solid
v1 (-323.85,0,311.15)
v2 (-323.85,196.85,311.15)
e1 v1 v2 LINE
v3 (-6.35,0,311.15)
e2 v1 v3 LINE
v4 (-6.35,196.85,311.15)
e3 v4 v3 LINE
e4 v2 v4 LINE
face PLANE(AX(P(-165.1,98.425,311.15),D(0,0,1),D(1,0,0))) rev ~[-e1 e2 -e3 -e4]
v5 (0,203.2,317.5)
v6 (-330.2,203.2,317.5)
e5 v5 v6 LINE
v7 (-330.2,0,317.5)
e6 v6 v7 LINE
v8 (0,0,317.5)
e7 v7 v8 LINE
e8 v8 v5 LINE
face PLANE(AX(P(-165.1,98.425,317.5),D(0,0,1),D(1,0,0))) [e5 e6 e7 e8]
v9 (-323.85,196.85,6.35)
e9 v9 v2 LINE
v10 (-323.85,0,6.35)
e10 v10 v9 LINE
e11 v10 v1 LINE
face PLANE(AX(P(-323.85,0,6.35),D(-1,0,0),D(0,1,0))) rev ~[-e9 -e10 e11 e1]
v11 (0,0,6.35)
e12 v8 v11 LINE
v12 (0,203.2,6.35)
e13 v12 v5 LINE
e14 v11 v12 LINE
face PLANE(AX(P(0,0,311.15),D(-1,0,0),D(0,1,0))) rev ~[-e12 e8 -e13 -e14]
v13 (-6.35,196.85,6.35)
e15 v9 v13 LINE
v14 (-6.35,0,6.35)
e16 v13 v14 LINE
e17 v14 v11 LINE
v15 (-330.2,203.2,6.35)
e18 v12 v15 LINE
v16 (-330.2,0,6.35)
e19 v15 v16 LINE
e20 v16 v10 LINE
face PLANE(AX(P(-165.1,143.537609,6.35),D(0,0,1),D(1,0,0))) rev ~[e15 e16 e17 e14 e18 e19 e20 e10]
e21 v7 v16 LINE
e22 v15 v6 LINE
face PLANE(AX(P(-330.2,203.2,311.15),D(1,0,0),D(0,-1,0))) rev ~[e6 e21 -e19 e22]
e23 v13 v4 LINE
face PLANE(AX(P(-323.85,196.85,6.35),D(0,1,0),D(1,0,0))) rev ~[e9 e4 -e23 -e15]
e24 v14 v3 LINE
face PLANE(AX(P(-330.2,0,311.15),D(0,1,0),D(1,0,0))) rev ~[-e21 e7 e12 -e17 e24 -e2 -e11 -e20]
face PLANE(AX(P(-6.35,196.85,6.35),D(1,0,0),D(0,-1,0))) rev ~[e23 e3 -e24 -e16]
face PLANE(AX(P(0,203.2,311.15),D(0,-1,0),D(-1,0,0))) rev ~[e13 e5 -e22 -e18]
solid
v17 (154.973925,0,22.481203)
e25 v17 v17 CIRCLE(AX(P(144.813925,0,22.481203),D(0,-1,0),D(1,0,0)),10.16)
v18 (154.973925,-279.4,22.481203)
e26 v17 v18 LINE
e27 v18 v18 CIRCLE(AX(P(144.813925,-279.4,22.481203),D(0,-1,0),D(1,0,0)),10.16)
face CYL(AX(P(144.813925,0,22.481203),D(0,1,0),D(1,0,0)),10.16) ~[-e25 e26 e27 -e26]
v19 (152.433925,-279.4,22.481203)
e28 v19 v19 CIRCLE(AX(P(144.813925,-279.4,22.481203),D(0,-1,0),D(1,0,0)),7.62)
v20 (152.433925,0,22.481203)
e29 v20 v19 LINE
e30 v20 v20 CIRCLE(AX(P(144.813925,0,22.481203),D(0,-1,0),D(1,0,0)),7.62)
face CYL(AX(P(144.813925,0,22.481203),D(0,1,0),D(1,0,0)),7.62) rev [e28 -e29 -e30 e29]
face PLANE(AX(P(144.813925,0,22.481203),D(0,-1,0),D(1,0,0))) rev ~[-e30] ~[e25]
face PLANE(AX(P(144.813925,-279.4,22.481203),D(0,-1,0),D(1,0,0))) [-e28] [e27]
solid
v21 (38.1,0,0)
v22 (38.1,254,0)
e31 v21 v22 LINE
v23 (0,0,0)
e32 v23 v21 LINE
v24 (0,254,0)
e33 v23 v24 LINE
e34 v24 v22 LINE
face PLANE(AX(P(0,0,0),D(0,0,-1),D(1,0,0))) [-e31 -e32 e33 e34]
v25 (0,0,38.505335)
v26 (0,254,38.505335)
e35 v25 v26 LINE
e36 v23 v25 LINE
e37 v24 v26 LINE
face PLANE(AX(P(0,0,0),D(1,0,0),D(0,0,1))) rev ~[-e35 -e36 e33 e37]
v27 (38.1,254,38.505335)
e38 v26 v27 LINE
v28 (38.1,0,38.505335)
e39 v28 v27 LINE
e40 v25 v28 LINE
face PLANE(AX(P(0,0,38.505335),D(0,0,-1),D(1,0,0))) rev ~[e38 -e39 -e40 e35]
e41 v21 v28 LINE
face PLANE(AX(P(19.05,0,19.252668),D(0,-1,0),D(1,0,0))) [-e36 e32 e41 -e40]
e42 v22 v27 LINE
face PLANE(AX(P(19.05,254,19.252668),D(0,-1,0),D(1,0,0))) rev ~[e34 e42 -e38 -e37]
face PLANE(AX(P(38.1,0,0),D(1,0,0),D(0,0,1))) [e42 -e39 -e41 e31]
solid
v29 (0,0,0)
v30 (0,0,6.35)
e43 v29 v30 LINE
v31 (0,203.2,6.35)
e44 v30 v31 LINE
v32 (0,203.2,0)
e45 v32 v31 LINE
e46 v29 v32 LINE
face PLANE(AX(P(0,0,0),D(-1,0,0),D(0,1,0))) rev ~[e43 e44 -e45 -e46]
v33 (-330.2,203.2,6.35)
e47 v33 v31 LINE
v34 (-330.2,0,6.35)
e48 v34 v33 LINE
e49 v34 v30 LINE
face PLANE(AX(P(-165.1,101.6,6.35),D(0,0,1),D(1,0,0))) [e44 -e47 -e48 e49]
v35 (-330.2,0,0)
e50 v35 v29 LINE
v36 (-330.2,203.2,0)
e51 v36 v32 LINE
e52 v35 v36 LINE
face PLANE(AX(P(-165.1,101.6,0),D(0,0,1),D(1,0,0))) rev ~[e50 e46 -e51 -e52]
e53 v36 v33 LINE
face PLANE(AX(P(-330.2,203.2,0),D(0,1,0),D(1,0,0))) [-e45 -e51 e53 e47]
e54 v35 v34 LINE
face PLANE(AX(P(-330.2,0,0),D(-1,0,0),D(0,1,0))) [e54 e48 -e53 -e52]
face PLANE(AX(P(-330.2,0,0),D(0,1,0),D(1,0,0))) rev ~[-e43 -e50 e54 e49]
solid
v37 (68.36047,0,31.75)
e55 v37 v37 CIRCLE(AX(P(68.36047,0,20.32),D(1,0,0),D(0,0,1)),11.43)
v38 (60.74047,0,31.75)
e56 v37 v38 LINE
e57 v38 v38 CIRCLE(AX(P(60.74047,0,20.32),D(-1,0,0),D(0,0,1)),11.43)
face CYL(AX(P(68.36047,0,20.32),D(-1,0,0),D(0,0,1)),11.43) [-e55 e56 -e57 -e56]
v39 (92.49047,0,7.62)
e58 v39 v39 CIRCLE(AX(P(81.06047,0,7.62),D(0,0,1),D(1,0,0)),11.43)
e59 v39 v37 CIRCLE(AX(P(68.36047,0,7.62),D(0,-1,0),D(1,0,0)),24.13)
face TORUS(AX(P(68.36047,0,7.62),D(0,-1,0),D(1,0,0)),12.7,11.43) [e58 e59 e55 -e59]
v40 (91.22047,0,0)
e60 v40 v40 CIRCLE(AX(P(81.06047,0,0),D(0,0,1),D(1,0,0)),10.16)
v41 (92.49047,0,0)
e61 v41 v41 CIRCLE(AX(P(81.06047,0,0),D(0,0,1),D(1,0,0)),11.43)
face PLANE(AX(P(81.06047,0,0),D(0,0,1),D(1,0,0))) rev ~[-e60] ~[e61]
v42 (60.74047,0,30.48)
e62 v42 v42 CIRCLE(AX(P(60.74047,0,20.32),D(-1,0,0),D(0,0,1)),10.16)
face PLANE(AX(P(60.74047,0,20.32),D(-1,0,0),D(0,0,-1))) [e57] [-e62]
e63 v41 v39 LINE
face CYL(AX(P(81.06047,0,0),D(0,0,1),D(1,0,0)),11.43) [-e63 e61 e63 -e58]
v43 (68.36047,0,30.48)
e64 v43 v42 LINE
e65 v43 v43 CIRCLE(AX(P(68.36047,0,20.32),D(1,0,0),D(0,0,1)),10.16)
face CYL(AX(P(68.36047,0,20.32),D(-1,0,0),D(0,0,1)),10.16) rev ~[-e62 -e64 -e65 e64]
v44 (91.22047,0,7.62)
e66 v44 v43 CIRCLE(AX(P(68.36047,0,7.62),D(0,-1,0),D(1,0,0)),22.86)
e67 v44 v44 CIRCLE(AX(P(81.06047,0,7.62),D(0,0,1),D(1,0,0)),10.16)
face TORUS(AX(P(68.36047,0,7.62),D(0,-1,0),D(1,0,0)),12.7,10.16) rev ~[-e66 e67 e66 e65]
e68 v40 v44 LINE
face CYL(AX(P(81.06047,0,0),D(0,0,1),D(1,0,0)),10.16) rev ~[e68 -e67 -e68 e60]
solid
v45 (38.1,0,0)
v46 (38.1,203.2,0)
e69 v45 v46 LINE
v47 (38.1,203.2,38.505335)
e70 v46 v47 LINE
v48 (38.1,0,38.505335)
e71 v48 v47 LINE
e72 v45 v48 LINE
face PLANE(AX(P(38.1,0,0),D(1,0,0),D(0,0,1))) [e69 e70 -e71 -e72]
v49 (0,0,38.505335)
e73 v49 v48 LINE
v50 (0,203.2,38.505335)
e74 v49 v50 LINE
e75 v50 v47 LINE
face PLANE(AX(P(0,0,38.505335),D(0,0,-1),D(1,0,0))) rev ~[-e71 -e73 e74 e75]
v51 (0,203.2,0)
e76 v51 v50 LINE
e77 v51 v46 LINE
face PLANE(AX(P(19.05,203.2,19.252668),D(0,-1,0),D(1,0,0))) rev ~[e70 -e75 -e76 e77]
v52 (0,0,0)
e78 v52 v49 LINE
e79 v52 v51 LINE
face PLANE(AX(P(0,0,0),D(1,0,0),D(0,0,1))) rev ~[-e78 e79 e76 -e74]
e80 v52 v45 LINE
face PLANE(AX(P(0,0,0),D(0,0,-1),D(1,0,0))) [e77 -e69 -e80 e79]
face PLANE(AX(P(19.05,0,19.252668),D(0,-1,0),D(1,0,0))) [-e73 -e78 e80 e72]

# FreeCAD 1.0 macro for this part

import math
import FreeCAD as App
import Part
import Sketcher

V = App.Vector
Q = App.Units.Quantity

doc = App.newDocument("Part")
params = doc.addObject("Spreadsheet::Sheet", "Params")
for row, (alias, value) in enumerate([
    ("sketch1_width", "1.5 in"),
    ("pad1_length", "10 in"),
    ("sketch2_width", "1.5 in"),
    ("pad2_length", "8 in"),
    ("sketch3_width", "13 in"),
    ("sketch3_height", "8 in"),
    ("pad3_length", "0.25 in"),
    ("sketch4_diameter", "0.8 in"),
    ("sketch4_diameter2", "0.6 in"),
    ("pad4_length", "11 in"),
    ("sketch5_diameter", "0.9 in"),
    ("sketch5_diameter2", "0.8 in"),
    ("sketch6_radius", "0.5 in"),
    ("sketch6_width", "0.3 in"),
    ("sketch7_width", "13 in"),
    ("sketch7_height", "8 in"),
    ("sketch7_width2", "12.5 in"),
    ("sketch7_height2", "7.75 in"),
    ("pad5_length", "12 in"),
    ("sketch8_width", "13 in"),
    ("sketch8_height", "8 in"),
    ("pad6_length", "0.25 in"),
], start=1):
    params.set(f"A{row}", alias)
    params.set(f"B{row}", "=" + value)
    params.setAlias(f"B{row}", alias)

body = doc.addObject("PartDesign::Body", "Body")

# Sketch on XZ plane
sketch1 = body.newObject("Sketcher::SketchObject", "Sketch")
sketch1.AttachmentSupport = (doc.getObject("XZ_Plane"), [""])
sketch1.MapMode = "FlatFace"
sketch1.addGeometry([
    Part.LineSegment(V(0, 39, 0), V(0, 0, 0)),
    Part.LineSegment(V(0, 0, 0), V(38, 0, 0)),
    Part.LineSegment(V(38, 0, 0), V(38, 39, 0)),
    Part.LineSegment(V(38, 39, 0), V(0, 39, 0)),
], False)
sketch1.addConstraint([
    Sketcher.Constraint("Coincident", 0, 2, 1, 1),
    Sketcher.Constraint("Coincident", 1, 2, 2, 1),
    Sketcher.Constraint("Coincident", 2, 2, 3, 1),
    Sketcher.Constraint("Coincident", 3, 2, 0, 1),
    Sketcher.Constraint("Vertical", 0),
    Sketcher.Constraint("Horizontal", 1),
    Sketcher.Constraint("Vertical", 2),
    Sketcher.Constraint("Horizontal", 3),
    Sketcher.Constraint("Coincident", 0, 2, -1, 1),
    Sketcher.Constraint("DistanceX", 1, 1, 1, 2, Q("1.5 in")),
    Sketcher.Constraint("DistanceY", 0, 2, 0, 1, Q("38.505335 mm")),
])
sketch1.setExpression("Constraints[9]", "Params.sketch1_width")
pad1 = body.newObject("PartDesign::Pad", "Pad")
pad1.Profile = sketch1
pad1.setExpression("Length", "Params.pad1_length")
pad1.Reversed = True
body2 = doc.addObject("PartDesign::Body", "Body001")

# Sketch on XZ plane
sketch2 = body2.newObject("Sketcher::SketchObject", "Sketch001")
sketch2.AttachmentSupport = (doc.getObject("XZ_Plane001"), [""])
sketch2.MapMode = "FlatFace"
sketch2.addGeometry([
    Part.LineSegment(V(0, 39, 0), V(0, 0, 0)),
    Part.LineSegment(V(0, 0, 0), V(38, 0, 0)),
    Part.LineSegment(V(38, 0, 0), V(38, 39, 0)),
    Part.LineSegment(V(38, 39, 0), V(0, 39, 0)),
], False)
sketch2.addConstraint([
    Sketcher.Constraint("Coincident", 0, 2, 1, 1),
    Sketcher.Constraint("Coincident", 1, 2, 2, 1),
    Sketcher.Constraint("Coincident", 2, 2, 3, 1),
    Sketcher.Constraint("Coincident", 3, 2, 0, 1),
    Sketcher.Constraint("Vertical", 0),
    Sketcher.Constraint("Horizontal", 1),
    Sketcher.Constraint("Vertical", 2),
    Sketcher.Constraint("Horizontal", 3),
    Sketcher.Constraint("Coincident", 0, 2, -1, 1),
    Sketcher.Constraint("DistanceX", 1, 1, 1, 2, Q("1.5 in")),
    Sketcher.Constraint("DistanceY", 0, 2, 0, 1, Q("38.505335 mm")),
])
sketch2.setExpression("Constraints[9]", "Params.sketch2_width")
pad2 = body2.newObject("PartDesign::Pad", "Pad001")
pad2.Profile = sketch2
pad2.setExpression("Length", "Params.pad2_length")
pad2.Reversed = True
body3 = doc.addObject("PartDesign::Body", "Body002")

# Sketch on XY plane
sketch3 = body3.newObject("Sketcher::SketchObject", "Sketch002")
sketch3.AttachmentSupport = (doc.getObject("XY_Plane002"), [""])
sketch3.MapMode = "FlatFace"
sketch3.addGeometry([
    Part.LineSegment(V(-330, 203, 0), V(-330, 0, 0)),
    Part.LineSegment(V(-330, 0, 0), V(0, 0, 0)),
    Part.LineSegment(V(0, 0, 0), V(0, 203, 0)),
    Part.LineSegment(V(0, 203, 0), V(-330, 203, 0)),
], False)
sketch3.addConstraint([
    Sketcher.Constraint("Coincident", 0, 2, 1, 1),
    Sketcher.Constraint("Coincident", 1, 2, 2, 1),
    Sketcher.Constraint("Coincident", 2, 2, 3, 1),
    Sketcher.Constraint("Coincident", 3, 2, 0, 1),
    Sketcher.Constraint("Vertical", 0),
    Sketcher.Constraint("Horizontal", 1),
    Sketcher.Constraint("Vertical", 2),
    Sketcher.Constraint("Horizontal", 3),
    Sketcher.Constraint("Coincident", 1, 2, -1, 1),
    Sketcher.Constraint("DistanceX", 1, 1, 1, 2, Q("13 in")),
    Sketcher.Constraint("DistanceY", 0, 2, 0, 1, Q("8 in")),
])
sketch3.setExpression("Constraints[9]", "Params.sketch3_width")
sketch3.setExpression("Constraints[10]", "Params.sketch3_height")
pad3 = body3.newObject("PartDesign::Pad", "Pad002")
pad3.Profile = sketch3
pad3.setExpression("Length", "Params.pad3_length")
body4 = doc.addObject("PartDesign::Body", "Body003")

# Sketch on XZ plane
sketch4 = body4.newObject("Sketcher::SketchObject", "Sketch003")
sketch4.AttachmentSupport = (doc.getObject("XZ_Plane003"), [""])
sketch4.MapMode = "FlatFace"
sketch4.addGeometry([
    Part.Circle(V(145, 22, 0), V(0, 0, 1), 10),
    Part.Circle(V(145, 22, 0), V(0, 0, 1), 8),
], False)
sketch4.addConstraint([
    Sketcher.Constraint("Coincident", 1, 3, 0, 3),
    Sketcher.Constraint("Diameter", 0, Q("0.8 in")),
    Sketcher.Constraint("Diameter", 1, Q("0.6 in")),
    Sketcher.Constraint("DistanceX", -1, 1, 0, 3, Q("144.813925 mm")),
    Sketcher.Constraint("DistanceY", -1, 1, 0, 3, Q("22.481203 mm")),
])
sketch4.setExpression("Constraints[1]", "Params.sketch4_diameter")
sketch4.setExpression("Constraints[2]", "Params.sketch4_diameter2")
pad4 = body4.newObject("PartDesign::Pad", "Pad003")
pad4.Profile = sketch4
pad4.setExpression("Length", "Params.pad4_length")
body5 = doc.addObject("PartDesign::Body", "Body004")

# Sketch on XY plane
sketch5 = body5.newObject("Sketcher::SketchObject", "Sketch004")
sketch5.AttachmentSupport = (doc.getObject("XY_Plane004"), [""])
sketch5.MapMode = "FlatFace"
sketch5.addGeometry([
    Part.Circle(V(81, 0, 0), V(0, 0, 1), 11),
    Part.Circle(V(81, 0, 0), V(0, 0, 1), 10),
], False)
sketch5.addConstraint([
    Sketcher.Constraint("Coincident", 1, 3, 0, 3),
    Sketcher.Constraint("PointOnObject", 0, 3, -1),
    Sketcher.Constraint("Diameter", 0, Q("0.9 in")),
    Sketcher.Constraint("Diameter", 1, Q("0.8 in")),
    Sketcher.Constraint("DistanceX", -1, 1, 0, 3, Q("81.06047 mm")),
])
sketch5.setExpression("Constraints[2]", "Params.sketch5_diameter")
sketch5.setExpression("Constraints[3]", "Params.sketch5_diameter2")

# Sketch on XZ plane
sketch6 = body5.newObject("Sketcher::SketchObject", "Sketch005")
sketch6.AttachmentSupport = (doc.getObject("XZ_Plane004"), [""])
sketch6.MapMode = "FlatFace"
sketch6.addGeometry([
    Part.LineSegment(V(81, 0, 0), V(81, 8, 0)),
    Part.ArcOfCircle(Part.Circle(V(68, 8, 0), V(0, 0, 1), 13), math.radians(0), math.radians(90)),
    Part.LineSegment(V(68, 20, 0), V(61, 20, 0)),
], False)
sketch6.addConstraint([
    Sketcher.Constraint("Tangent", 0, 2, 1, 1),
    Sketcher.Constraint("Tangent", 1, 2, 2, 1),
    Sketcher.Constraint("Vertical", 0),
    Sketcher.Constraint("Horizontal", 2),
    Sketcher.Constraint("PointOnObject", 0, 1, -1),
    Sketcher.Constraint("Equal", 2, 0),
    Sketcher.Constraint("Radius", 1, Q("0.5 in")),
    Sketcher.Constraint("DistanceX", 2, 2, 2, 1, Q("0.3 in")),
    Sketcher.Constraint("DistanceX", -1, 1, 1, 3, Q("68.36047 mm")),
])
sketch6.setExpression("Constraints[6]", "Params.sketch6_radius")
sketch6.setExpression("Constraints[7]", "Params.sketch6_width")
doc.recompute()

additivepipe = body5.newObject("PartDesign::AdditivePipe", "AdditivePipe")
additivepipe.Profile = sketch5
additivepipe.Spine = (sketch6, ["Edge1", "Edge2", "Edge3"])
body6 = doc.addObject("PartDesign::Body", "Body005")

# Sketch on XY plane
sketch7 = body6.newObject("Sketcher::SketchObject", "Sketch006")
sketch7.AttachmentSupport = (doc.getObject("XY_Plane005"), [""])
sketch7.MapMode = "FlatFace"
sketch7.AttachmentOffset = App.Placement(V(0, 0, 0.25 * 25.4), App.Rotation())
sketch7.addGeometry([
    Part.LineSegment(V(-330, 203, 0), V(-330, 0, 0)),  # 0
    Part.LineSegment(V(-330, 0, 0), V(-324, 0, 0)),  # 1
    Part.LineSegment(V(-324, 0, 0), V(-324, 197, 0)),  # 2
    Part.LineSegment(V(-324, 197, 0), V(-6, 197, 0)),  # 3
    Part.LineSegment(V(-6, 197, 0), V(-6, 0, 0)),  # 4
    Part.LineSegment(V(-6, 0, 0), V(0, 0, 0)),  # 5
    Part.LineSegment(V(0, 0, 0), V(0, 203, 0)),  # 6
    Part.LineSegment(V(0, 203, 0), V(-330, 203, 0)),  # 7
], False)
sketch7.addConstraint([
    Sketcher.Constraint("Coincident", 0, 2, 1, 1),
    Sketcher.Constraint("Coincident", 1, 2, 2, 1),
    Sketcher.Constraint("Coincident", 2, 2, 3, 1),
    Sketcher.Constraint("Coincident", 3, 2, 4, 1),
    Sketcher.Constraint("Coincident", 4, 2, 5, 1),
    Sketcher.Constraint("Coincident", 5, 2, 6, 1),
    Sketcher.Constraint("Coincident", 6, 2, 7, 1),
    Sketcher.Constraint("Coincident", 7, 2, 0, 1),
    Sketcher.Constraint("Vertical", 0),
    Sketcher.Constraint("Horizontal", 1),
    Sketcher.Constraint("Vertical", 2),
    Sketcher.Constraint("Horizontal", 3),
    Sketcher.Constraint("Vertical", 4),
    Sketcher.Constraint("Horizontal", 5),
    Sketcher.Constraint("Vertical", 6),
    Sketcher.Constraint("Horizontal", 7),
    Sketcher.Constraint("Coincident", 5, 2, -1, 1),
    Sketcher.Constraint("PointOnObject", 0, 2, -1),
    Sketcher.Constraint("Equal", 1, 5),
    Sketcher.Constraint("DistanceX", 7, 2, 7, 1, Q("13 in")),
    Sketcher.Constraint("DistanceY", 0, 2, 0, 1, Q("8 in")),
    Sketcher.Constraint("DistanceX", 3, 1, 3, 2, Q("12.5 in")),
    Sketcher.Constraint("DistanceY", 2, 1, 2, 2, Q("7.75 in")),
])
sketch7.setExpression("Constraints[19]", "Params.sketch7_width")
sketch7.setExpression("Constraints[20]", "Params.sketch7_height")
sketch7.setExpression("Constraints[21]", "Params.sketch7_width2")
sketch7.setExpression("Constraints[22]", "Params.sketch7_height2")
pad5 = body6.newObject("PartDesign::Pad", "Pad004")
pad5.Profile = sketch7
pad5.setExpression("Length", "Params.pad5_length")

# Sketch on XY plane
sketch8 = body6.newObject("Sketcher::SketchObject", "Sketch007")
sketch8.AttachmentSupport = (doc.getObject("XY_Plane005"), [""])
sketch8.MapMode = "FlatFace"
sketch8.AttachmentOffset = App.Placement(V(0, 0, 12.25 * 25.4), App.Rotation())
sketch8.addGeometry([
    Part.LineSegment(V(0, 0, 0), V(0, 203, 0)),
    Part.LineSegment(V(0, 203, 0), V(-330, 203, 0)),
    Part.LineSegment(V(-330, 203, 0), V(-330, 0, 0)),
    Part.LineSegment(V(-330, 0, 0), V(0, 0, 0)),
], False)
sketch8.addConstraint([
    Sketcher.Constraint("Coincident", 0, 2, 1, 1),
    Sketcher.Constraint("Coincident", 1, 2, 2, 1),
    Sketcher.Constraint("Coincident", 2, 2, 3, 1),
    Sketcher.Constraint("Coincident", 3, 2, 0, 1),
    Sketcher.Constraint("Vertical", 0),
    Sketcher.Constraint("Horizontal", 1),
    Sketcher.Constraint("Vertical", 2),
    Sketcher.Constraint("Horizontal", 3),
    Sketcher.Constraint("Coincident", 3, 2, -1, 1),
    Sketcher.Constraint("DistanceX", 1, 2, 1, 1, Q("13 in")),
    Sketcher.Constraint("DistanceY", 0, 1, 0, 2, Q("8 in")),
])
sketch8.setExpression("Constraints[9]", "Params.sketch8_width")
sketch8.setExpression("Constraints[10]", "Params.sketch8_height")
pad6 = body6.newObject("PartDesign::Pad", "Pad005")
pad6.Profile = sketch8
pad6.setExpression("Length", "Params.pad6_length")

doc.recompute()
